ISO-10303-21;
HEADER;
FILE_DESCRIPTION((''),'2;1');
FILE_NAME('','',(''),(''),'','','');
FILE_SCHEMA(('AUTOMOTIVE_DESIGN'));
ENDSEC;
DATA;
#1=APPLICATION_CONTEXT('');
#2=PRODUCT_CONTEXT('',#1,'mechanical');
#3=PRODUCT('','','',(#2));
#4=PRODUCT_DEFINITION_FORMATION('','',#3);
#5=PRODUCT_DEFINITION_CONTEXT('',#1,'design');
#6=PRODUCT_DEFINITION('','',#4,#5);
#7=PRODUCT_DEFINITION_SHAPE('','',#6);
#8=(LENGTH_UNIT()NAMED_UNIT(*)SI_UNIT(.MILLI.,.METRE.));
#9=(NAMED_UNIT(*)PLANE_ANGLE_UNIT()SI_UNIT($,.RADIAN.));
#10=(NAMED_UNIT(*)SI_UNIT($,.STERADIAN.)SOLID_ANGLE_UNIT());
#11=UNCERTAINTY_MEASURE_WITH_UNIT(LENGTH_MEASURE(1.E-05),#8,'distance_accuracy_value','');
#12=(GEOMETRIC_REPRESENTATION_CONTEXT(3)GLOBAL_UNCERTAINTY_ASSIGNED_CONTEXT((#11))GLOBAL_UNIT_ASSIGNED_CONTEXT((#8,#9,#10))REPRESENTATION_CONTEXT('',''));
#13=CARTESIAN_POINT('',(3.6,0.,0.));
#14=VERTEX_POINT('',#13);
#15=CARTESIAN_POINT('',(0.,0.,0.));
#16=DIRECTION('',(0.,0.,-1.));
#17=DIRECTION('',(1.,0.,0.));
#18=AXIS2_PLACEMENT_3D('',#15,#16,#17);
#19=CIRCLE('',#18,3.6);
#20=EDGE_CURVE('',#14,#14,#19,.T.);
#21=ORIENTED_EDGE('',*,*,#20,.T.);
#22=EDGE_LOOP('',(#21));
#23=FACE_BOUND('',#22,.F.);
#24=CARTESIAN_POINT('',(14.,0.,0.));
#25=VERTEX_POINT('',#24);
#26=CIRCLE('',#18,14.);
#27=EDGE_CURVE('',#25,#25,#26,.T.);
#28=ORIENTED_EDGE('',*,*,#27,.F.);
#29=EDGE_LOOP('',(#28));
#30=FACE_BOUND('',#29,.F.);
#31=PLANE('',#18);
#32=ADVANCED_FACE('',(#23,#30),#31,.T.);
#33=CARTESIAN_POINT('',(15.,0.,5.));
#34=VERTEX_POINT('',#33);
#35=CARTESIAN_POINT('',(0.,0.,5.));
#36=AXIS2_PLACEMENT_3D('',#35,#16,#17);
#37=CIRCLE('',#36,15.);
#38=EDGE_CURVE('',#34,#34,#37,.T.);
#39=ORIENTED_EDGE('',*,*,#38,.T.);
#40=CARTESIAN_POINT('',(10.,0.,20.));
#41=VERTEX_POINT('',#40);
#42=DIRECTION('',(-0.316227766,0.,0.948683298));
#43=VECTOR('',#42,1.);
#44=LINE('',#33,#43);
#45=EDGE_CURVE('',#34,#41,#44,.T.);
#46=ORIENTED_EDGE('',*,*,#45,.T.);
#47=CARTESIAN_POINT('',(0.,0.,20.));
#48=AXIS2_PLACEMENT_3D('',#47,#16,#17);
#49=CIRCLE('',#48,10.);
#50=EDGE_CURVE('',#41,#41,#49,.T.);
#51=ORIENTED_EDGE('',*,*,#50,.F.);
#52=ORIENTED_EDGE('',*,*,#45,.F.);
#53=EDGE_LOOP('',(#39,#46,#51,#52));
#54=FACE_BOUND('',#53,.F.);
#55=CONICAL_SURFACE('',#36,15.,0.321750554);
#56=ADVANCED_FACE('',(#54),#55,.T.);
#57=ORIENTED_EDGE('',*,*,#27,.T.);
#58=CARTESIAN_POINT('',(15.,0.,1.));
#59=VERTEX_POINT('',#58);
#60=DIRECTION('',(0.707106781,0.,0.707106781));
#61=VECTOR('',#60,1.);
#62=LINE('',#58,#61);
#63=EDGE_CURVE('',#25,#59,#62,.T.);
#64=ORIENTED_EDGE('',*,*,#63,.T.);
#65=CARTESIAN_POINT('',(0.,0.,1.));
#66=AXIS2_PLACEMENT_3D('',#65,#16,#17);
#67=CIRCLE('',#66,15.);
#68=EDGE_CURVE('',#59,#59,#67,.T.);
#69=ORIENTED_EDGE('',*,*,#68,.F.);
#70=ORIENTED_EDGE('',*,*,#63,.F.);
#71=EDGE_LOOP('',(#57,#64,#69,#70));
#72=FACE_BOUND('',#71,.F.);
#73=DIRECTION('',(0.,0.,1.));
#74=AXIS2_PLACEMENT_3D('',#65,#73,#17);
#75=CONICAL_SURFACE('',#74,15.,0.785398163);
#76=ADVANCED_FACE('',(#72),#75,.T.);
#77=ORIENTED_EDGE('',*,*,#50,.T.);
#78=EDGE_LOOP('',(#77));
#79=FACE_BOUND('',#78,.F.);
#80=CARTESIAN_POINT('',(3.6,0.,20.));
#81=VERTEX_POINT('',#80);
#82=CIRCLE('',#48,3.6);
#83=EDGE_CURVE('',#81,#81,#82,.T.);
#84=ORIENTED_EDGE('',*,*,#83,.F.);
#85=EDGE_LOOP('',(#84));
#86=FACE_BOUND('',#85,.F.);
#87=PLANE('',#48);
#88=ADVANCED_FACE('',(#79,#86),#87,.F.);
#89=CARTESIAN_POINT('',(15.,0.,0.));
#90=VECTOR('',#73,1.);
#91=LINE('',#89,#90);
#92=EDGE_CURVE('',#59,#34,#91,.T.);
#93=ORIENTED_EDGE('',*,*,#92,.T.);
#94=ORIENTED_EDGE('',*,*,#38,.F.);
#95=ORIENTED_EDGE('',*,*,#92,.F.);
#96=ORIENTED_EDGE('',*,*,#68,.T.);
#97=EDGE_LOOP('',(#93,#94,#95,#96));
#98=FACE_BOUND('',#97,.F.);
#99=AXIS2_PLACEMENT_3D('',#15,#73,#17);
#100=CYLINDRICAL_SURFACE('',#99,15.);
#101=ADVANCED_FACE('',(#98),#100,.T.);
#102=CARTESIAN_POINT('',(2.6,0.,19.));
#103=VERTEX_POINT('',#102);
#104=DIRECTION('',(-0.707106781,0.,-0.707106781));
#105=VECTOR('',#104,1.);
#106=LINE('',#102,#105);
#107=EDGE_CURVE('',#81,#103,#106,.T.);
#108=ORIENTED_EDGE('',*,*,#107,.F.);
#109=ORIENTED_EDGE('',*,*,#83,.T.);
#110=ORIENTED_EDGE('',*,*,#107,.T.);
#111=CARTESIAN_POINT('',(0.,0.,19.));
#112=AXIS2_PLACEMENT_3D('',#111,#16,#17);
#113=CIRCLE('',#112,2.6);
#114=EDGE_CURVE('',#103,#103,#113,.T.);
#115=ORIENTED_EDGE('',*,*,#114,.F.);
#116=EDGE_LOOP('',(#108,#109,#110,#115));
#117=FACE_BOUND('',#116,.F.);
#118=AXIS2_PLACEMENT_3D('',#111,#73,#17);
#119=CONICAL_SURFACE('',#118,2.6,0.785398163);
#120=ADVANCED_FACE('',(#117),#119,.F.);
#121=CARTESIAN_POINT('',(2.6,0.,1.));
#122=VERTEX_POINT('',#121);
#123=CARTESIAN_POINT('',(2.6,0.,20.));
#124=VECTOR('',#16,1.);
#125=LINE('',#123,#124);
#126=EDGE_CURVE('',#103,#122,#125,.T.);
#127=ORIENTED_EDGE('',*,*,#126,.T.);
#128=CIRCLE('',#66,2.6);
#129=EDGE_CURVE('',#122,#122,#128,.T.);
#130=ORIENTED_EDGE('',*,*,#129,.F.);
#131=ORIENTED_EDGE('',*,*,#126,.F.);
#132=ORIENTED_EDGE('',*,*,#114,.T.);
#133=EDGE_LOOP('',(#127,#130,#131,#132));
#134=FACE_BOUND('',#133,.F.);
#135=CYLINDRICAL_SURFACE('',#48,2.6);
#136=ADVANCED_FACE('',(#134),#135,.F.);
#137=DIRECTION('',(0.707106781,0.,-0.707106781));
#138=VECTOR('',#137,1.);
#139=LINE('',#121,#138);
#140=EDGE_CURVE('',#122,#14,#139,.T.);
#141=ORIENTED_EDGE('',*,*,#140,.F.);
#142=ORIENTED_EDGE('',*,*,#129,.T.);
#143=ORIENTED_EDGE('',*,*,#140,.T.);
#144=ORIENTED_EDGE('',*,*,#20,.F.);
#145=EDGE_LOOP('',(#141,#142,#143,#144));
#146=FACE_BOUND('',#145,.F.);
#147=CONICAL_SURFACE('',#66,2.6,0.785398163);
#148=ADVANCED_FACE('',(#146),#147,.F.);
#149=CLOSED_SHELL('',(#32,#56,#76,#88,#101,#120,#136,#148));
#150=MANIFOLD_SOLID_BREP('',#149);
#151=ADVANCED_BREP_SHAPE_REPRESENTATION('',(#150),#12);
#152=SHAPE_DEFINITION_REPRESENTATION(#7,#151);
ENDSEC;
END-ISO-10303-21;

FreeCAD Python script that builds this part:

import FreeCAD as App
import Part
import Sketcher


def edges_at(feature, points):
    """Names of the edges that pass closest to the given points."""
    edges = feature.Shape.Edges
    near = lambda p: min(range(len(edges)), key=lambda i: edges[i].distToShape(Part.Vertex(*p))[0])
    return sorted({f"Edge{near(p) + 1}" for p in points})

doc = App.newDocument("Part")
body = doc.addObject("PartDesign::Body", "Body")

sketch1 = body.newObject("Sketcher::SketchObject", "Sketch")
sketch1.AttachmentSupport = (doc.getObject("XZ_Plane"), [""])
sketch1.MapMode = "FlatFace"
sketch1.addGeometry([
    Part.LineSegment(App.Vector(10, 20, 0), App.Vector(3, 20, 0)),
    Part.LineSegment(App.Vector(3, 20, 0), App.Vector(3, 0, 0)),
    Part.LineSegment(App.Vector(3, 0, 0), App.Vector(15, 0, 0)),
    Part.LineSegment(App.Vector(15, 0, 0), App.Vector(15, 5, 0)),
    Part.LineSegment(App.Vector(15, 5, 0), App.Vector(10, 20, 0)),
], False)
sketch1.addConstraint([
    Sketcher.Constraint("Coincident", 0, 2, 1, 1),
    Sketcher.Constraint("Coincident", 1, 2, 2, 1),
    Sketcher.Constraint("Coincident", 2, 2, 3, 1),
    Sketcher.Constraint("Coincident", 3, 2, 4, 1),
    Sketcher.Constraint("Coincident", 4, 2, 0, 1),
    Sketcher.Constraint("Horizontal", 0),
    Sketcher.Constraint("Vertical", 1),
    Sketcher.Constraint("Horizontal", 2),
    Sketcher.Constraint("Vertical", 3),
    Sketcher.Constraint("PointOnObject", 1, 2, -1),
    Sketcher.Constraint("DistanceY", 1, 2, 1, 1, 20.0),
    Sketcher.Constraint("DistanceY", 3, 1, 3, 2, 5.0),
    Sketcher.Constraint("DistanceX", 0, 2, 0, 1, 7.4),
    Sketcher.Constraint("DistanceX", 2, 1, 2, 2, 12.4),
    Sketcher.Constraint("DistanceX", -1, 1, 2, 2, 15.0),
])
revolution = body.newObject("PartDesign::Revolution", "Revolution")
revolution.Profile = sketch1
revolution.ReferenceAxis = (sketch1, ["V_Axis"])
revolution.Angle = 360
doc.recompute()

chamfer = body.newObject("PartDesign::Chamfer", "Chamfer")
chamfer.Base = (revolution, edges_at(revolution, [(-2.6, 0, 20), (-2.6, 0, 0), (-15, 0, 0)]))
chamfer.Size = 1

doc.recompute()
